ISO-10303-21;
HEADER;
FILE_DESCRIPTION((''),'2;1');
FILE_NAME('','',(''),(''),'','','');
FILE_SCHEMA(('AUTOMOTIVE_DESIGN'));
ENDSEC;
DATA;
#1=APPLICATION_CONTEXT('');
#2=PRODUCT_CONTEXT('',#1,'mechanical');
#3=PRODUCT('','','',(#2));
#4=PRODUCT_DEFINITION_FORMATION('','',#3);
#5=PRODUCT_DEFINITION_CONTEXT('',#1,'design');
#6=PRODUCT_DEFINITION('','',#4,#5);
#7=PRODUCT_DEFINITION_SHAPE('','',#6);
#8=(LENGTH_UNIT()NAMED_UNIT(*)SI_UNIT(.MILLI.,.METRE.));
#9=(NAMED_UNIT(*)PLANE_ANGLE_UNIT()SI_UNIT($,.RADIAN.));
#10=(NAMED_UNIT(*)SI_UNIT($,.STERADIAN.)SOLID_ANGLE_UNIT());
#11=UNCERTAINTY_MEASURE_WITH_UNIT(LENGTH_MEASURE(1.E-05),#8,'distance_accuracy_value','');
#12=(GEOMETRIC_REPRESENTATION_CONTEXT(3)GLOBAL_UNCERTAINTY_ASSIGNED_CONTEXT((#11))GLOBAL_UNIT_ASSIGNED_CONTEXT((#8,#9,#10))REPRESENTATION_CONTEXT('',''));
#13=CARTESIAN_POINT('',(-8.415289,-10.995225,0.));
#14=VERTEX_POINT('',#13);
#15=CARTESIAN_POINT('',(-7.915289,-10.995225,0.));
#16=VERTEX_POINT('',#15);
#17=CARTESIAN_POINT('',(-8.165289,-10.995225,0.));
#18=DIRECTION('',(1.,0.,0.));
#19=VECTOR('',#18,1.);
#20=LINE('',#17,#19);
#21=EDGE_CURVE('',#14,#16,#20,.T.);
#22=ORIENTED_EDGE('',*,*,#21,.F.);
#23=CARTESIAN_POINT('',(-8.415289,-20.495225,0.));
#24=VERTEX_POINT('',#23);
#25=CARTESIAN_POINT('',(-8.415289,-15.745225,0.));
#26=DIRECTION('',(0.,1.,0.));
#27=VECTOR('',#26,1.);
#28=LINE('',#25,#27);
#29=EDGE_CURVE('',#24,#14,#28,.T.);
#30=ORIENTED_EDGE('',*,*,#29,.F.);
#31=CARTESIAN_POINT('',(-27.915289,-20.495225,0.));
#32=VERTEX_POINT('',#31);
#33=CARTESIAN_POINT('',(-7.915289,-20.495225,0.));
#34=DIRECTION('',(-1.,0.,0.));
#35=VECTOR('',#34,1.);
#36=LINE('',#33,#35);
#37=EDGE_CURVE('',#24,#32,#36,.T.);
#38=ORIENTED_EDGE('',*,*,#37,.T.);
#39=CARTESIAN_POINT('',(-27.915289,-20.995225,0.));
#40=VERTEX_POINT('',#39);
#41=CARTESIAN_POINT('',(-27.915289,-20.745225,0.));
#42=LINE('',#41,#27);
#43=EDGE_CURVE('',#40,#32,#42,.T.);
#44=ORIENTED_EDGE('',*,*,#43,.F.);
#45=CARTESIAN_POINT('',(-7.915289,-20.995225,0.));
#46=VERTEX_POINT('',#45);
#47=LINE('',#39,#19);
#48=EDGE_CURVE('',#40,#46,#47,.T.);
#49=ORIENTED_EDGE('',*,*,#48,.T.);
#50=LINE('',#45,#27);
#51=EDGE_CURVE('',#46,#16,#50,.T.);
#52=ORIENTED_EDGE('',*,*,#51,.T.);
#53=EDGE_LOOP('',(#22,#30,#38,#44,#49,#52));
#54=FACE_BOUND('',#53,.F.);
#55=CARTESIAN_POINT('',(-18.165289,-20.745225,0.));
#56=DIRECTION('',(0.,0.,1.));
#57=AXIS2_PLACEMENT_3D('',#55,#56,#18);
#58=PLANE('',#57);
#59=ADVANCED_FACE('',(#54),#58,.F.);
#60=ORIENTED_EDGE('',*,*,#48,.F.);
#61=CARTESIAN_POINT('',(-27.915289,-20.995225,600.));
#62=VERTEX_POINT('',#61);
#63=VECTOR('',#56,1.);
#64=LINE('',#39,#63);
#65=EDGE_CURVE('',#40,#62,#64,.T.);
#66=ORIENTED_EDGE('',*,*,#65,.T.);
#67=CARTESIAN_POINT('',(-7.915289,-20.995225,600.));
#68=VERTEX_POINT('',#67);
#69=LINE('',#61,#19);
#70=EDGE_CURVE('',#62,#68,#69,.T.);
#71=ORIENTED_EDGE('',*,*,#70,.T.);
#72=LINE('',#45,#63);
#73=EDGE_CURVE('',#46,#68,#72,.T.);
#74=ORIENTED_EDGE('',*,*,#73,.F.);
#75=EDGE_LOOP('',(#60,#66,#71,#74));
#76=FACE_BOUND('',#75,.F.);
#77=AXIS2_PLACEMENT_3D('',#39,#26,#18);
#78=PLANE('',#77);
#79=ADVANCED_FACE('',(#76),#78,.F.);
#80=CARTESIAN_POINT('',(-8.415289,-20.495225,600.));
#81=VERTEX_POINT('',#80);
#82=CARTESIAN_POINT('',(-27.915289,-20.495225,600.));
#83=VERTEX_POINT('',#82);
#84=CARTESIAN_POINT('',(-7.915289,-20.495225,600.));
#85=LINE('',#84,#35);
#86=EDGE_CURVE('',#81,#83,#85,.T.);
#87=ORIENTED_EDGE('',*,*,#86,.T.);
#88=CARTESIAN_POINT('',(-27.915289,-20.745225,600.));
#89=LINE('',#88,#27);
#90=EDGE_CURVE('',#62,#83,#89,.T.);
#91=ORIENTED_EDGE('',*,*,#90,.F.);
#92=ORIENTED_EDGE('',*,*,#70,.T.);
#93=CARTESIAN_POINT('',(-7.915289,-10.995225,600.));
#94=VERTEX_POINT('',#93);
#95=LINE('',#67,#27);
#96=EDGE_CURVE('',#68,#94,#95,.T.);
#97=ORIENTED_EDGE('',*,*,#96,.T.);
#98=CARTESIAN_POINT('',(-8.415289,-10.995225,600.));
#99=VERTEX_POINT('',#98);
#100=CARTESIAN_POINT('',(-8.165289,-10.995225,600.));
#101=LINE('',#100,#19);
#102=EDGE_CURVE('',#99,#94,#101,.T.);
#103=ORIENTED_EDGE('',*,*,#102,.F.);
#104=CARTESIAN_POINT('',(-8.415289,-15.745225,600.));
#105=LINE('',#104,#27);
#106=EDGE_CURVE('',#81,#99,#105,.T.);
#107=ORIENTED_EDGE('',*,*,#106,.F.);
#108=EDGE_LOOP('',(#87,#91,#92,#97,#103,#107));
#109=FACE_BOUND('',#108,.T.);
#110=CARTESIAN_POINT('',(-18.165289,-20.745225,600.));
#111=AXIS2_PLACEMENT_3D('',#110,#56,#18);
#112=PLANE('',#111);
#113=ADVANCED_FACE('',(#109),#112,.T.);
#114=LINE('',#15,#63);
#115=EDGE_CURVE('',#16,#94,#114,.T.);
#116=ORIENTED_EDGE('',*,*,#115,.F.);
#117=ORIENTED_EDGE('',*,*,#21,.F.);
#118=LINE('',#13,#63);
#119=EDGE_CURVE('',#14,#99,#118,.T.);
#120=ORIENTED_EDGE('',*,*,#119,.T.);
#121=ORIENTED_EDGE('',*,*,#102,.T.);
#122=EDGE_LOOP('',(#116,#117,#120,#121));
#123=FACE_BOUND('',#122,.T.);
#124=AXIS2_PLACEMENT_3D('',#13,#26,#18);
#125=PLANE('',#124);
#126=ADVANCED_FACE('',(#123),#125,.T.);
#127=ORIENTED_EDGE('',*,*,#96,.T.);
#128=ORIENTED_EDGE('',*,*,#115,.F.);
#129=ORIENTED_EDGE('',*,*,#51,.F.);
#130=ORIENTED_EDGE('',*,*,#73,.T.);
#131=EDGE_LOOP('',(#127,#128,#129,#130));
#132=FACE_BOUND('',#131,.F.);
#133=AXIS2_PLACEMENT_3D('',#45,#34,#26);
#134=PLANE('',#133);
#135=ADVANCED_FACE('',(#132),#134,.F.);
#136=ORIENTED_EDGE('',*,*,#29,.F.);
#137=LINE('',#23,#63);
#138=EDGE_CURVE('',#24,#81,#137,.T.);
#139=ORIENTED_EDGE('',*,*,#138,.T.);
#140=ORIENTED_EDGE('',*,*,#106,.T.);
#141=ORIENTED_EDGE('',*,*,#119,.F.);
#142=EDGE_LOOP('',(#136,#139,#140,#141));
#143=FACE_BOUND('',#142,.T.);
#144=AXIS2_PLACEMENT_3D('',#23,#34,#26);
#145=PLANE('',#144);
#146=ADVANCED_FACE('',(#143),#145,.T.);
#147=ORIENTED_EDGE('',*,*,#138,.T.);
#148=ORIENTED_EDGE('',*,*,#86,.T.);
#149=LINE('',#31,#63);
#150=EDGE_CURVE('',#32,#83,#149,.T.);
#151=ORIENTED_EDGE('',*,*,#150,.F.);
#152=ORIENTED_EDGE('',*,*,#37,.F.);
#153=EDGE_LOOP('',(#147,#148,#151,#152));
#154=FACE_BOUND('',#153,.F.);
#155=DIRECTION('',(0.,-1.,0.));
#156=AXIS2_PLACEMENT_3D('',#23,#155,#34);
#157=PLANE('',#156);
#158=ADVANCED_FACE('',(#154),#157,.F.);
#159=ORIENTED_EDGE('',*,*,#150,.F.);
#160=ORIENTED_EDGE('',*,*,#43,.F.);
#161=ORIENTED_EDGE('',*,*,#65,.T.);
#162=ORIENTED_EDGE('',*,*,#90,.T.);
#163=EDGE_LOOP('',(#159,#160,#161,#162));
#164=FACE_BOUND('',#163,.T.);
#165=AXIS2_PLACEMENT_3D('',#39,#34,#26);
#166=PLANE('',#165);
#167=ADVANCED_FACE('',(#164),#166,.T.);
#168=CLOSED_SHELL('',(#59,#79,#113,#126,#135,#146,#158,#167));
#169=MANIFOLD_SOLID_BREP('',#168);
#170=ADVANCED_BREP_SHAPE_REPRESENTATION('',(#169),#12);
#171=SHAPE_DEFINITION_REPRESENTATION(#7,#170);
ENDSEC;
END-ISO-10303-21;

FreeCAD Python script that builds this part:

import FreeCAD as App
import Part
import Sketcher
from FreeCAD import Vector

doc = App.newDocument("Part")
params = doc.addObject("Spreadsheet::Sheet", "Params")
for row, (alias, value) in enumerate([
    ("sketch1_width", "20 mm"),
    ("sketch1_height", "10 mm"),
    ("sketch1_width2", "0.5 mm"),
    ("pad1_length", "600 mm"),
], start=1):
    params.set(f"A{row}", alias)
    params.set(f"B{row}", "=" + value)
    params.setAlias(f"B{row}", alias)

body = doc.addObject("PartDesign::Body", "Body")

# Sketch on XY plane
sketch1 = doc.addObject("Sketcher::SketchObject", "Sketch")
body.addObject(sketch1)
sketch1.AttachmentSupport = (doc.XY_Plane, [""])
sketch1.MapMode = "FlatFace"
sketch1.addGeometry([
    Part.LineSegment(Vector(-27.9, -20.5, 0), Vector(-27.9, -21, 0)),  # 0
    Part.LineSegment(Vector(-27.9, -21, 0), Vector(-7.9, -21, 0)),  # 1
    Part.LineSegment(Vector(-7.9, -21, 0), Vector(-7.9, -11, 0)),  # 2
    Part.LineSegment(Vector(-7.9, -11, 0), Vector(-8.4, -11, 0)),  # 3
    Part.LineSegment(Vector(-8.4, -11, 0), Vector(-8.4, -20.5, 0)),  # 4
    Part.LineSegment(Vector(-8.4, -20.5, 0), Vector(-27.9, -20.5, 0)),  # 5
], False)
sketch1.addConstraint([
    Sketcher.Constraint("Coincident", 0, 2, 1, 1),
    Sketcher.Constraint("Coincident", 1, 2, 2, 1),
    Sketcher.Constraint("Coincident", 2, 2, 3, 1),
    Sketcher.Constraint("Coincident", 3, 2, 4, 1),
    Sketcher.Constraint("Coincident", 4, 2, 5, 1),
    Sketcher.Constraint("Coincident", 5, 2, 0, 1),
    Sketcher.Constraint("Vertical", 0),
    Sketcher.Constraint("Horizontal", 1),
    Sketcher.Constraint("Vertical", 2),
    Sketcher.Constraint("Horizontal", 3),
    Sketcher.Constraint("Vertical", 4),
    Sketcher.Constraint("Horizontal", 5),
    Sketcher.Constraint("Equal", 3, 0),
    Sketcher.Constraint("DistanceX", 1, 1, 1, 2, 20.0),
    Sketcher.Constraint("DistanceY", 2, 1, 2, 2, 10.0),
    Sketcher.Constraint("DistanceX", 3, 2, 3, 1, 0.5),
    Sketcher.Constraint("DistanceX", 0, 2, -1, 1, 27.915289),
    Sketcher.Constraint("DistanceY", 0, 2, -1, 1, 20.995225),
])
sketch1.setExpression("Constraints[13]", "Params.sketch1_width")
sketch1.setExpression("Constraints[14]", "Params.sketch1_height")
sketch1.setExpression("Constraints[15]", "Params.sketch1_width2")
pad1 = doc.addObject("PartDesign::Pad", "Pad")
body.addObject(pad1)
pad1.Profile = sketch1
pad1.setExpression("Length", "Params.pad1_length")

doc.recompute()
